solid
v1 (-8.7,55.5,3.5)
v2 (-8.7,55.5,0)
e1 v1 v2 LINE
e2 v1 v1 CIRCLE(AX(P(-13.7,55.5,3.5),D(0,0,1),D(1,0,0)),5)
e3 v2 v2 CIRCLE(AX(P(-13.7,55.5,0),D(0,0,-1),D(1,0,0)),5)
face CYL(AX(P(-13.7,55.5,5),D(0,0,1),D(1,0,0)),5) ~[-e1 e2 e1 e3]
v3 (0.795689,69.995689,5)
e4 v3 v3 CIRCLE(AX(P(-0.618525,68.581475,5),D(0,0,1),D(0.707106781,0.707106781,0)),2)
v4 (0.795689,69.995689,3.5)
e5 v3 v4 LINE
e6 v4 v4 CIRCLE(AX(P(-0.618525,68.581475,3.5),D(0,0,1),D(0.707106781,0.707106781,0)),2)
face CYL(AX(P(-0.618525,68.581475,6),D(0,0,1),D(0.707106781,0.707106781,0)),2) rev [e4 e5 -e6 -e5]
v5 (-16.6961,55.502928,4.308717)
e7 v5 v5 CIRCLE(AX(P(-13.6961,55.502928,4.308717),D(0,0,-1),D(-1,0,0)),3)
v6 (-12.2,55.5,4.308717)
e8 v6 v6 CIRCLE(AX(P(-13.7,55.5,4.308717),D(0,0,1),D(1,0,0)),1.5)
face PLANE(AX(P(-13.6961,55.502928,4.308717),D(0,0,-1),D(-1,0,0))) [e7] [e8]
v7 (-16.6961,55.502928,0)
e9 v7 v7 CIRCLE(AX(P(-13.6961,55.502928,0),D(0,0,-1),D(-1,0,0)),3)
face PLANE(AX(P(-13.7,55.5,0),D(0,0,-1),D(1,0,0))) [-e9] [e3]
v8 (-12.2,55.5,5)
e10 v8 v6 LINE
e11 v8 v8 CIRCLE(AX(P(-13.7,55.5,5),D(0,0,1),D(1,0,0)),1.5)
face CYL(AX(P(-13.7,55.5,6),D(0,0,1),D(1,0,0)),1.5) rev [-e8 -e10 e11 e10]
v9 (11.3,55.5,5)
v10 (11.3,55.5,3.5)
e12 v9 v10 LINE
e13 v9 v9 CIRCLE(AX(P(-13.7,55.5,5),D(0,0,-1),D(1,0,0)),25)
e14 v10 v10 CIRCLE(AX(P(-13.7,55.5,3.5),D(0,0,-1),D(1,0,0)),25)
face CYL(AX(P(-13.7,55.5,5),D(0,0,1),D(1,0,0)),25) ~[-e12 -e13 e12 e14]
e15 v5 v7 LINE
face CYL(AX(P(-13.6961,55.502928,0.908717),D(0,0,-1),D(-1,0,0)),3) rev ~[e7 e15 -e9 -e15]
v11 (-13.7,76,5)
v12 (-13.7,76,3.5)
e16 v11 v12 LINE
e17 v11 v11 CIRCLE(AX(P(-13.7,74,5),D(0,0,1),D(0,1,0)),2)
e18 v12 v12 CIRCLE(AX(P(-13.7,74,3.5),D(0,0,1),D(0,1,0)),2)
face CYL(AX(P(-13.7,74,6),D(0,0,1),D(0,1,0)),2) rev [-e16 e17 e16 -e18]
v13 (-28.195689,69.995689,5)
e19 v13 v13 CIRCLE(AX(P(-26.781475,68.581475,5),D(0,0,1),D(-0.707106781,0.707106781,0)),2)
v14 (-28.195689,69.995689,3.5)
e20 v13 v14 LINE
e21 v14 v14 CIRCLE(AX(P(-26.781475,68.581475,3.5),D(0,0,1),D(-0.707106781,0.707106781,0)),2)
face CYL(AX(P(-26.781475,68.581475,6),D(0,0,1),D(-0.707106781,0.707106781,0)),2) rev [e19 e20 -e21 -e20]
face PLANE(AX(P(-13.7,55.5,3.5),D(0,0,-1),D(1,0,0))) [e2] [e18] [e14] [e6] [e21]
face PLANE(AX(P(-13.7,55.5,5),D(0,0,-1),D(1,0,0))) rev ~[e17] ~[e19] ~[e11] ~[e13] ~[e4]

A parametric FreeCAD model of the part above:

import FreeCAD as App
import Part
import Sketcher

V = App.Vector

doc = App.newDocument("Part")
params = doc.addObject("Spreadsheet::Sheet", "Params")
for row, (alias, value) in enumerate([
    ("sketch1_diameter", "6 mm"),
    ("pad1_length", "4 mm"),
    ("pad1_length2", "3.4 mm"),
    ("sketch2_diameter", "3 mm"),
    ("pad2_length", "19 mm"),
    ("sketch3_diameter", "4 mm"),
    ("pad3_length", "1 mm"),
    ("sketch4_diameter", "4 mm"),
    ("pad4_length", "1 mm"),
    ("sketch5_diameter", "4 mm"),
    ("pad5_length", "1 mm"),
    ("sketch6_diameter", "4 mm"),
    ("pad6_length", "1 mm"),
    ("sketch7_diameter", "4 mm"),
    ("pad7_length", "5 mm"),
    ("sketch8_diameter", "4 mm"),
    ("pad8_length", "5 mm"),
    ("sketch9_diameter", "4 mm"),
    ("pad9_length", "5 mm"),
    ("sketch10_diameter", "4 mm"),
    ("pad10_length", "1 mm"),
    ("sketch11_diameter", "10 mm"),
    ("pad11_length", "5 mm"),
    ("sketch12_diameter", "50 mm"),
    ("pad12_length", "1.5 mm"),
], start=1):
    params.set(f"A{row}", alias)
    params.set(f"B{row}", "=" + value)
    params.setAlias(f"B{row}", alias)

body = doc.addObject("PartDesign::Body", "Body")

sketch1 = body.newObject("Sketcher::SketchObject", "Sketch")
sketch1.AttachmentSupport = (doc.getObject("XY_Plane"), [""])
sketch1.MapMode = "FlatFace"
sketch1.AttachmentOffset = App.Placement(V(0, 0, 1.091283), App.Rotation())
sketch1.addGeometry(Part.Circle(V(76.2139, -4.552928, 0), V(0, 0, 1), 3), False)
sketch1.addConstraint(Sketcher.Constraint("Diameter", 0, 6.0))
sketch1.addConstraint(Sketcher.Constraint("DistanceX", -1, 1, 0, 3, 76.2139))
sketch1.addConstraint(Sketcher.Constraint("DistanceY", 0, 3, -1, 1, 4.552928))
sketch1.setExpression("Constraints[0]", "Params.sketch1_diameter")
pad1 = body.newObject("PartDesign::Pad", "Pad")
pad1.Profile = sketch1
pad1.Type = "TwoLengths"
pad1.setExpression("Length", "Params.pad1_length")
pad1.setExpression("Length2", "Params.pad1_length2")
body2 = doc.addObject("PartDesign::Body", "Body001")
doc.recompute()

body.Placement = App.Placement(V(-76.21, 4.55, 3), App.Rotation(V(0, 0, 1), 0))
boolean = body2.newObject("PartDesign::Boolean", "Boolean")
boolean.Type = "Fuse"
boolean.addObjects([body])
body3 = doc.addObject("PartDesign::Body", "Body002")

sketch2 = body3.newObject("Sketcher::SketchObject", "Sketch001")
sketch2.AttachmentSupport = (doc.getObject("XY_Plane002"), [""])
sketch2.MapMode = "FlatFace"
sketch2.AttachmentOffset = App.Placement(V(0, 0, -1), App.Rotation())
sketch2.addGeometry(Part.Circle(V(0, 0, 0), V(0, 0, 1), 1.5), False)
sketch2.addConstraint(Sketcher.Constraint("Coincident", 0, 3, -1, 1))
sketch2.addConstraint(Sketcher.Constraint("Diameter", 0, 3.0))
sketch2.setExpression("Constraints[1]", "Params.sketch2_diameter")
pad2 = body3.newObject("PartDesign::Pad", "Pad001")
pad2.Profile = sketch2
pad2.setExpression("Length", "Params.pad2_length")
body4 = doc.addObject("PartDesign::Body", "Body003")

sketch3 = body4.newObject("Sketcher::SketchObject", "Sketch002")
sketch3.AttachmentSupport = (doc.getObject("XY_Plane003"), [""])
sketch3.MapMode = "FlatFace"
sketch3.addGeometry(Part.Circle(V(0, 0, 0), V(0, 0, 1), 2), False)
sketch3.addConstraint(Sketcher.Constraint("Coincident", 0, 3, -1, 1))
sketch3.addConstraint(Sketcher.Constraint("Diameter", 0, 4.0))
sketch3.setExpression("Constraints[1]", "Params.sketch3_diameter")
pad3 = body4.newObject("PartDesign::Pad", "Pad002")
pad3.Profile = sketch3
pad3.setExpression("Length", "Params.pad3_length")
body5 = doc.addObject("PartDesign::Body", "Body004")
doc.recompute()

body4.Placement = App.Placement(V(13.081475, 13.081475, 0), App.Rotation(V(0, 0, 1), 45))
boolean2 = body5.newObject("PartDesign::Boolean", "Boolean001")
boolean2.Type = "Fuse"
boolean2.addObjects([body4])
body6 = doc.addObject("PartDesign::Body", "Body005")

sketch4 = body6.newObject("Sketcher::SketchObject", "Sketch003")
sketch4.AttachmentSupport = (doc.getObject("XY_Plane005"), [""])
sketch4.MapMode = "FlatFace"
sketch4.addGeometry(Part.Circle(V(0, 18.5, 0), V(0, 0, 1), 2), False)
sketch4.addConstraint(Sketcher.Constraint("PointOnObject", 0, 3, -2))
sketch4.addConstraint(Sketcher.Constraint("Diameter", 0, 4.0))
sketch4.addConstraint(Sketcher.Constraint("DistanceY", -1, 1, 0, 3, 18.5))
sketch4.setExpression("Constraints[1]", "Params.sketch4_diameter")
pad4 = body6.newObject("PartDesign::Pad", "Pad003")
pad4.Profile = sketch4
pad4.setExpression("Length", "Params.pad4_length")
body7 = doc.addObject("PartDesign::Body", "Body006")

sketch5 = body7.newObject("Sketcher::SketchObject", "Sketch004")
sketch5.AttachmentSupport = (doc.getObject("XY_Plane006"), [""])
sketch5.MapMode = "FlatFace"
sketch5.addGeometry(Part.Circle(V(0, 0, 0), V(0, 0, 1), 2), False)
sketch5.addConstraint(Sketcher.Constraint("Coincident", 0, 3, -1, 1))
sketch5.addConstraint(Sketcher.Constraint("Diameter", 0, 4.0))
sketch5.setExpression("Constraints[1]", "Params.sketch5_diameter")
pad5 = body7.newObject("PartDesign::Pad", "Pad004")
pad5.Profile = sketch5
pad5.setExpression("Length", "Params.pad5_length")
body8 = doc.addObject("PartDesign::Body", "Body007")
doc.recompute()

body7.Placement = App.Placement(V(-13.081475, 13.081475, 0), App.Rotation(V(0, 0, 1), 135))
boolean3 = body8.newObject("PartDesign::Boolean", "Boolean002")
boolean3.Type = "Fuse"
boolean3.addObjects([body7])
body9 = doc.addObject("PartDesign::Body", "Body008")

sketch6 = body9.newObject("Sketcher::SketchObject", "Sketch005")
sketch6.AttachmentSupport = (doc.getObject("XY_Plane008"), [""])
sketch6.MapMode = "FlatFace"
sketch6.addGeometry(Part.Circle(V(-18.5, 0, 0), V(0, 0, 1), 2), False)
sketch6.addConstraint(Sketcher.Constraint("PointOnObject", 0, 3, -1))
sketch6.addConstraint(Sketcher.Constraint("Diameter", 0, 4.0))
sketch6.addConstraint(Sketcher.Constraint("DistanceX", 0, 3, -1, 1, 18.5))
sketch6.setExpression("Constraints[1]", "Params.sketch6_diameter")
pad6 = body9.newObject("PartDesign::Pad", "Pad005")
pad6.Profile = sketch6
pad6.setExpression("Length", "Params.pad6_length")
body10 = doc.addObject("PartDesign::Body", "Body009")

sketch7 = body10.newObject("Sketcher::SketchObject", "Sketch006")
sketch7.AttachmentSupport = (doc.getObject("XY_Plane009"), [""])
sketch7.MapMode = "FlatFace"
sketch7.addGeometry(Part.Circle(V(0, 0, 0), V(0, 0, 1), 2), False)
sketch7.addConstraint(Sketcher.Constraint("Coincident", 0, 3, -1, 1))
sketch7.addConstraint(Sketcher.Constraint("Diameter", 0, 4.0))
sketch7.setExpression("Constraints[1]", "Params.sketch7_diameter")
pad7 = body10.newObject("PartDesign::Pad", "Pad006")
pad7.Profile = sketch7
pad7.setExpression("Length", "Params.pad7_length")
body11 = doc.addObject("PartDesign::Body", "Body010")
doc.recompute()

body10.Placement = App.Placement(V(-13.081475, -13.081475, 0), App.Rotation(V(0, 0, 1), 225))
boolean4 = body11.newObject("PartDesign::Boolean", "Boolean003")
boolean4.Type = "Fuse"
boolean4.addObjects([body10])
body12 = doc.addObject("PartDesign::Body", "Body011")

sketch8 = body12.newObject("Sketcher::SketchObject", "Sketch007")
sketch8.AttachmentSupport = (doc.getObject("XY_Plane011"), [""])
sketch8.MapMode = "FlatFace"
sketch8.addGeometry(Part.Circle(V(0, -18.5, 0), V(0, 0, 1), 2), False)
sketch8.addConstraint(Sketcher.Constraint("PointOnObject", 0, 3, -2))
sketch8.addConstraint(Sketcher.Constraint("Diameter", 0, 4.0))
sketch8.addConstraint(Sketcher.Constraint("DistanceY", 0, 3, -1, 1, 18.5))
sketch8.setExpression("Constraints[1]", "Params.sketch8_diameter")
pad8 = body12.newObject("PartDesign::Pad", "Pad007")
pad8.Profile = sketch8
pad8.setExpression("Length", "Params.pad8_length")
body13 = doc.addObject("PartDesign::Body", "Body012")

sketch9 = body13.newObject("Sketcher::SketchObject", "Sketch008")
sketch9.AttachmentSupport = (doc.getObject("XY_Plane012"), [""])
sketch9.MapMode = "FlatFace"
sketch9.addGeometry(Part.Circle(V(0, 0, 0), V(0, 0, 1), 2), False)
sketch9.addConstraint(Sketcher.Constraint("Coincident", 0, 3, -1, 1))
sketch9.addConstraint(Sketcher.Constraint("Diameter", 0, 4.0))
sketch9.setExpression("Constraints[1]", "Params.sketch9_diameter")
pad9 = body13.newObject("PartDesign::Pad", "Pad008")
pad9.Profile = sketch9
pad9.setExpression("Length", "Params.pad9_length")
body14 = doc.addObject("PartDesign::Body", "Body013")
doc.recompute()

body13.Placement = App.Placement(V(13.081475, -13.081475, 0), App.Rotation(V(0, 0, -1), 45))
boolean5 = body14.newObject("PartDesign::Boolean", "Boolean004")
boolean5.Type = "Fuse"
boolean5.addObjects([body13])
body15 = doc.addObject("PartDesign::Body", "Body014")
body15.AllowCompound = True

sketch10 = body15.newObject("Sketcher::SketchObject", "Sketch009")
sketch10.AttachmentSupport = (doc.getObject("XY_Plane014"), [""])
sketch10.MapMode = "FlatFace"
sketch10.addGeometry(Part.Circle(V(18.5, 0, 0), V(0, 0, 1), 2), False)
sketch10.addConstraint(Sketcher.Constraint("PointOnObject", 0, 3, -1))
sketch10.addConstraint(Sketcher.Constraint("Diameter", 0, 4.0))
sketch10.addConstraint(Sketcher.Constraint("DistanceX", -1, 1, 0, 3, 18.5))
sketch10.setExpression("Constraints[1]", "Params.sketch10_diameter")
pad10 = body15.newObject("PartDesign::Pad", "Pad009")
pad10.Profile = sketch10
pad10.setExpression("Length", "Params.pad10_length")
doc.recompute()

boolean6 = body15.newObject("PartDesign::Boolean", "Boolean005")
boolean6.Type = "Fuse"
boolean6.addObjects([body5])
doc.recompute()

boolean7 = body15.newObject("PartDesign::Boolean", "Boolean006")
boolean7.Type = "Fuse"
boolean7.addObjects([body6])
doc.recompute()

boolean8 = body15.newObject("PartDesign::Boolean", "Boolean007")
boolean8.Type = "Fuse"
boolean8.addObjects([body8])
doc.recompute()

boolean9 = body15.newObject("PartDesign::Boolean", "Boolean008")
boolean9.Type = "Fuse"
boolean9.addObjects([body9])
doc.recompute()

boolean10 = body15.newObject("PartDesign::Boolean", "Boolean009")
boolean10.Type = "Fuse"
boolean10.addObjects([body11])
doc.recompute()

boolean11 = body15.newObject("PartDesign::Boolean", "Boolean010")
boolean11.Type = "Fuse"
boolean11.addObjects([body12])
doc.recompute()

boolean12 = body15.newObject("PartDesign::Boolean", "Boolean011")
boolean12.Type = "Fuse"
boolean12.addObjects([body14])
body16 = doc.addObject("PartDesign::Body", "Body015")
body16.AllowCompound = True
doc.recompute()

body15.Placement = App.Placement(V(0, 0, -1), App.Rotation(V(0, 0, 1), 0))
boolean13 = body16.newObject("PartDesign::Boolean", "Boolean012")
boolean13.Type = "Fuse"
boolean13.addObjects([body15])
doc.recompute()

boolean14 = body16.newObject("PartDesign::Boolean", "Boolean013")
boolean14.Type = "Fuse"
boolean14.addObjects([body2])
doc.recompute()

boolean15 = body16.newObject("PartDesign::Boolean", "Boolean014")
boolean15.Type = "Fuse"
boolean15.addObjects([body3])
body17 = doc.addObject("PartDesign::Body", "Body016")

sketch11 = body17.newObject("Sketcher::SketchObject", "Sketch010")
sketch11.AttachmentSupport = (doc.getObject("XY_Plane016"), [""])
sketch11.MapMode = "FlatFace"
sketch11.addGeometry(Part.Circle(V(0, 0, 0), V(0, 0, 1), 5), False)
sketch11.addConstraint(Sketcher.Constraint("Coincident", 0, 3, -1, 1))
sketch11.addConstraint(Sketcher.Constraint("Diameter", 0, 10.0))
sketch11.setExpression("Constraints[1]", "Params.sketch11_diameter")
pad11 = body17.newObject("PartDesign::Pad", "Pad010")
pad11.Profile = sketch11
pad11.setExpression("Length", "Params.pad11_length")
body18 = doc.addObject("PartDesign::Body", "Body017")

sketch12 = body18.newObject("Sketcher::SketchObject", "Sketch011")
sketch12.AttachmentSupport = (doc.getObject("XY_Plane017"), [""])
sketch12.MapMode = "FlatFace"
sketch12.addGeometry(Part.Circle(V(0, 0, 0), V(0, 0, 1), 25), False)
sketch12.addConstraint(Sketcher.Constraint("Coincident", 0, 3, -1, 1))
sketch12.addConstraint(Sketcher.Constraint("Diameter", 0, 50.0))
sketch12.setExpression("Constraints[1]", "Params.sketch12_diameter")
pad12 = body18.newObject("PartDesign::Pad", "Pad011")
pad12.Profile = sketch12
pad12.setExpression("Length", "Params.pad12_length")
doc.recompute()

boolean16 = body18.newObject("PartDesign::Boolean", "Boolean015")
boolean16.Type = "Fuse"
boolean16.addObjects([body17])
doc.recompute()

boolean17 = body18.newObject("PartDesign::Boolean", "Boolean016")
boolean17.Type = "Cut"
boolean17.addObjects([body16])
body19 = doc.addObject("PartDesign::Body", "Body018")
doc.recompute()

body18.Placement = App.Placement(V(-13.7, 55.5, 5), App.Rotation(V(1, 0, 0), 180))
boolean18 = body19.newObject("PartDesign::Boolean", "Boolean017")
boolean18.Type = "Fuse"
boolean18.addObjects([body18])

doc.recompute()
